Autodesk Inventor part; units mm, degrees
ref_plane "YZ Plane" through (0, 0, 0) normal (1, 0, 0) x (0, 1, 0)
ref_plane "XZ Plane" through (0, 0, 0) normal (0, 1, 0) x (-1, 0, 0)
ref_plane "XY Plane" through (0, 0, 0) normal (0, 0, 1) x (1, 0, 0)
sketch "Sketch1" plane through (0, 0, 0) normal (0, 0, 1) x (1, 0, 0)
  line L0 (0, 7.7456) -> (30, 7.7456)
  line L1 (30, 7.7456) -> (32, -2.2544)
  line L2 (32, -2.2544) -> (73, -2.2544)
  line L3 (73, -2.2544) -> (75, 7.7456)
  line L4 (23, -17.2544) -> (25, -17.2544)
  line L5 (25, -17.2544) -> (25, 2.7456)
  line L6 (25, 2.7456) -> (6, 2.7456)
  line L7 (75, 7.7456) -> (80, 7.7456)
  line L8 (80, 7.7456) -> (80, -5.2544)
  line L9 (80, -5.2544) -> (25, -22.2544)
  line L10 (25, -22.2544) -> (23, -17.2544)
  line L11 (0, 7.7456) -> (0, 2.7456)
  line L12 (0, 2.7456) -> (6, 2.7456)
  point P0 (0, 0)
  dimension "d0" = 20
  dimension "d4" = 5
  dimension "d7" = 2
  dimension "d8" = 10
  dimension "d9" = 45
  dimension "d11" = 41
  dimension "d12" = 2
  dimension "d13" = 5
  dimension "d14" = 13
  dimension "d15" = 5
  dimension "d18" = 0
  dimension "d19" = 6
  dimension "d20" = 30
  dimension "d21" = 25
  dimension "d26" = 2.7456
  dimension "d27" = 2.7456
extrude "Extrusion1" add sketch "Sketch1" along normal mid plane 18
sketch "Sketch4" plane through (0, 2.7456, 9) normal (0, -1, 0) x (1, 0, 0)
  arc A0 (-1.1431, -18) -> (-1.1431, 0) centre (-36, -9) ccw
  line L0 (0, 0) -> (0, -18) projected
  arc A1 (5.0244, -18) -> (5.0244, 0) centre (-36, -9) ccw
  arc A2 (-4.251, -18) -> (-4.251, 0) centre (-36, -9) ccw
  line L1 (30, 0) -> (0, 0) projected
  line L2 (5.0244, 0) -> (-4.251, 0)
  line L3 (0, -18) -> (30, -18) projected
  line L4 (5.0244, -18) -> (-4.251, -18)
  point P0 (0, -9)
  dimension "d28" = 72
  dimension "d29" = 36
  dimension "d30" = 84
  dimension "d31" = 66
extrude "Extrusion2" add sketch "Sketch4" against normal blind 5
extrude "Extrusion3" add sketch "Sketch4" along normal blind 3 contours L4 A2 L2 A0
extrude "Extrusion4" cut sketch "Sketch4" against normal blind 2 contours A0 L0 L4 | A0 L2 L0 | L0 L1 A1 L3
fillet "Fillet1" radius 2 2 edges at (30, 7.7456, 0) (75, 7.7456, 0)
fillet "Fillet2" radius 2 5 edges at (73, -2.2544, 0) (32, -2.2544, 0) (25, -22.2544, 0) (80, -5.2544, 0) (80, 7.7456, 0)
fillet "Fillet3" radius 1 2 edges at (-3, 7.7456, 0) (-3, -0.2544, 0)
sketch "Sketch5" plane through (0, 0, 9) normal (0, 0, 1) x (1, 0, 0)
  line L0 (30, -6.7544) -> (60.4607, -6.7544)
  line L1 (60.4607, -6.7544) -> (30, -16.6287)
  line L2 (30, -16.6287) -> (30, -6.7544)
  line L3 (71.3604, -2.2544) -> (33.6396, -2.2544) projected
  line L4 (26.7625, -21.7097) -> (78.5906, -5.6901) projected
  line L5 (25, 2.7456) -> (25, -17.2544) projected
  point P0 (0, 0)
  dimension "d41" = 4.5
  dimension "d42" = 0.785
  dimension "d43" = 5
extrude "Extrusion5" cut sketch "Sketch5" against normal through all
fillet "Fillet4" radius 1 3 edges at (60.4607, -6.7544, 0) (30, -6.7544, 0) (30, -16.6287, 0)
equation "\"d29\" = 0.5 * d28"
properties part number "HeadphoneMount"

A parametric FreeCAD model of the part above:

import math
import FreeCAD as App
import Part
import Sketcher
from FreeCAD import Vector
Q = App.Units.Quantity


def edges_at(feature, points):
    """Names of the edges that pass closest to the given points."""
    edges = feature.Shape.Edges
    near = lambda p: min(range(len(edges)), key=lambda i: edges[i].distToShape(Part.Vertex(*p))[0])
    return sorted({f"Edge{near(p) + 1}" for p in points})

doc = App.newDocument("Part")
params = doc.addObject("Spreadsheet::Sheet", "Params")
for row, (alias, value) in enumerate([
    ("sketch1_width", "30 mm"),
    ("sketch1_width2", "25 mm"),
    ("sketch1_width3", "2 mm"),
    ("sketch1_width4", "5 mm"),
    ("sketch1_width5", "41 mm"),
    ("pad1_length", "18 mm"),
    ("sketch2_radius", "42 mm"),
    ("sketch2_radius2", "33 mm"),
    ("pad2_length", "5 mm"),
    ("sketch3_radius", "36 mm"),
    ("sketch3_radius2", "33 mm"),
    ("pad3_length", "3 mm"),
    ("sketch4_radius", "42 mm"),
    ("sketch4_radius2", "36 mm"),
    ("pocket1_length", "2 mm"),
    ("fillet_radius", "2 mm"),
    ("fillet2_radius", "2 mm"),
    ("fillet3_radius", "1 mm"),
    ("fillet4_radius", "1 mm"),
], start=1):
    params.set(f"A{row}", alias)
    params.set(f"B{row}", "=" + value)
    params.setAlias(f"B{row}", alias)

body = doc.addObject("PartDesign::Body", "Body")

sketch1 = body.newObject("Sketcher::SketchObject", "Sketch")
sketch1.AttachmentSupport = (doc.getObject("XY_Plane"), [""])
sketch1.MapMode = "FlatFace"
sketch1.addGeometry([
    Part.LineSegment(Vector(30, 7.7456, 0), Vector(0, 7.7456, 0)),
    Part.LineSegment(Vector(0, 7.7456, 0), Vector(0, 2.7456, 0)),
    Part.LineSegment(Vector(0, 2.7456, 0), Vector(25, 2.7456, 0)),
    Part.LineSegment(Vector(25, 2.7456, 0), Vector(25, -17.2544, 0)),
    Part.LineSegment(Vector(25, -17.2544, 0), Vector(23, -17.2544, 0)),
    Part.LineSegment(Vector(23, -17.2544, 0), Vector(25, -22.2544, 0)),
    Part.LineSegment(Vector(25, -22.2544, 0), Vector(80, -5.2544, 0)),
    Part.LineSegment(Vector(80, -5.2544, 0), Vector(80, 7.7456, 0)),
    Part.LineSegment(Vector(80, 7.7456, 0), Vector(75, 7.7456, 0)),
    Part.LineSegment(Vector(75, 7.7456, 0), Vector(73, -2.2544, 0)),
    Part.LineSegment(Vector(73, -2.2544, 0), Vector(32, -2.2544, 0)),
    Part.LineSegment(Vector(32, -2.2544, 0), Vector(30, 7.7456, 0)),
], False)
sketch1.addConstraint([
    Sketcher.Constraint("Coincident", 0, 2, 1, 1),
    Sketcher.Constraint("Coincident", 1, 2, 2, 1),
    Sketcher.Constraint("Coincident", 2, 2, 3, 1),
    Sketcher.Constraint("Coincident", 3, 2, 4, 1),
    Sketcher.Constraint("Coincident", 4, 2, 5, 1),
    Sketcher.Constraint("Coincident", 5, 2, 6, 1),
    Sketcher.Constraint("Coincident", 6, 2, 7, 1),
    Sketcher.Constraint("Coincident", 7, 2, 8, 1),
    Sketcher.Constraint("Coincident", 8, 2, 9, 1),
    Sketcher.Constraint("Coincident", 9, 2, 10, 1),
    Sketcher.Constraint("Coincident", 10, 2, 11, 1),
    Sketcher.Constraint("Coincident", 11, 2, 0, 1),
    Sketcher.Constraint("Horizontal", 0),
    Sketcher.Constraint("Vertical", 1),
    Sketcher.Constraint("Horizontal", 2),
    Sketcher.Constraint("Vertical", 3),
    Sketcher.Constraint("Horizontal", 4),
    Sketcher.Constraint("Vertical", 7),
    Sketcher.Constraint("Horizontal", 8),
    Sketcher.Constraint("Horizontal", 10),
    Sketcher.Constraint("PointOnObject", 0, 2, -2),
    Sketcher.Constraint("Horizontal", 0, 2, 7, 2),
    Sketcher.Constraint("Vertical", 3, 2, 5, 2),
    Sketcher.Constraint("Equal", 8, 1),
    Sketcher.Constraint("Equal", 9, 11),
    Sketcher.Constraint("DistanceX", 0, 2, 0, 1, 30.0),
    Sketcher.Constraint("DistanceX", 2, 1, 2, 2, 25.0),
    Sketcher.Constraint("DistanceX", 4, 2, 4, 1, 2.0),
    Sketcher.Constraint("DistanceX", 8, 2, 8, 1, 5.0),
    Sketcher.Constraint("DistanceX", 10, 2, 10, 1, 41.0),
    Sketcher.Constraint("DistanceY", 3, 2, 3, 1, 20.0),
    Sketcher.Constraint("DistanceY", 7, 1, 7, 2, 13.0),
    Sketcher.Constraint("DistanceY", 5, 2, 3, 2, 5.0),
    Sketcher.Constraint("DistanceX", 9, 2, 8, 2, 2.0),
    Sketcher.Constraint("DistanceY", 9, 2, 8, 2, 10.0),
    Sketcher.Constraint("DistanceY", -1, 1, 1, 2, 2.7456),
])
sketch1.setExpression("Constraints[25]", "Params.sketch1_width")
sketch1.setExpression("Constraints[26]", "Params.sketch1_width2")
sketch1.setExpression("Constraints[27]", "Params.sketch1_width3")
sketch1.setExpression("Constraints[28]", "Params.sketch1_width4")
sketch1.setExpression("Constraints[29]", "Params.sketch1_width5")
pad1 = body.newObject("PartDesign::Pad", "Pad")
pad1.Profile = sketch1
pad1.setExpression("Length", "Params.pad1_length")
pad1.Midplane = True

sketch2 = body.newObject("Sketcher::SketchObject", "Sketch001")
sketch2.AttachmentSupport = (doc.getObject("XZ_Plane"), [""])
sketch2.MapMode = "FlatFace"
sketch2.AttachmentOffset = App.Placement(Vector(0, 0, -2.7456), App.Rotation())
sketch2.addGeometry([
    Part.LineSegment(Vector(-4.251, -9, 0), Vector(5.0244, -9, 0)),
    Part.ArcOfCircle(Part.Circle(Vector(-36, 0, 0), Vector(0, 0, 1), 42.000017), math.radians(-12.37362), math.radians(12.37362)),
    Part.LineSegment(Vector(5.0244, 9, 0), Vector(-4.251, 9, 0)),
    Part.ArcOfCircle(Part.Circle(Vector(-36, 0, 0), Vector(0, 0, 1), 32.999985), math.radians(-15.826628), math.radians(15.826628)),
], False)
sketch2.addConstraint([
    Sketcher.Constraint("Coincident", 0, 2, 1, 1),
    Sketcher.Constraint("Coincident", 1, 2, 2, 1),
    Sketcher.Constraint("Coincident", 2, 2, 3, 2),
    Sketcher.Constraint("Coincident", 3, 1, 0, 1),
    Sketcher.Constraint("Horizontal", 0),
    Sketcher.Constraint("Horizontal", 2),
    Sketcher.Constraint("Coincident", 3, 3, 1, 3),
    Sketcher.Constraint("Symmetric", 0, 2, 1, 2, -1),
    Sketcher.Constraint("Radius", 1, 42.0),
    Sketcher.Constraint("Radius", 3, 33.0),
    Sketcher.Constraint("DistanceX", 1, 3, -1, 1, 36.0),
    Sketcher.Constraint("DistanceY", 0, 2, -1, 1, 9.0),
])
sketch2.setExpression("Constraints[8]", "Params.sketch2_radius")
sketch2.setExpression("Constraints[9]", "Params.sketch2_radius2")
pad2 = body.newObject("PartDesign::Pad", "Pad001")
pad2.Profile = sketch2
pad2.setExpression("Length", "Params.pad2_length")
pad2.Reversed = True

sketch3 = body.newObject("Sketcher::SketchObject", "Sketch002")
sketch3.AttachmentSupport = (doc.getObject("XZ_Plane"), [""])
sketch3.MapMode = "FlatFace"
sketch3.AttachmentOffset = App.Placement(Vector(0, 0, -2.7456), App.Rotation())
sketch3.addGeometry([
    Part.LineSegment(Vector(-4.251, -9, 0), Vector(-1.1431, -9, 0)),
    Part.ArcOfCircle(Part.Circle(Vector(-36, 0, 0), Vector(0, 0, 1), 36.000048), math.radians(-14.477492), math.radians(14.477492)),
    Part.LineSegment(Vector(-1.1431, 9, 0), Vector(-4.251, 9, 0)),
    Part.ArcOfCircle(Part.Circle(Vector(-36, 0, 0), Vector(0, 0, 1), 32.999985), math.radians(-15.826628), math.radians(15.826628)),
], False)
sketch3.addConstraint([
    Sketcher.Constraint("Coincident", 0, 2, 1, 1),
    Sketcher.Constraint("Coincident", 1, 2, 2, 1),
    Sketcher.Constraint("Coincident", 2, 2, 3, 2),
    Sketcher.Constraint("Coincident", 3, 1, 0, 1),
    Sketcher.Constraint("Horizontal", 0),
    Sketcher.Constraint("Horizontal", 2),
    Sketcher.Constraint("Coincident", 3, 3, 1, 3),
    Sketcher.Constraint("Symmetric", 0, 2, 1, 2, -1),
    Sketcher.Constraint("Radius", 1, 36.0),
    Sketcher.Constraint("Radius", 3, 33.0),
    Sketcher.Constraint("DistanceX", 1, 3, -1, 1, 36.0),
    Sketcher.Constraint("DistanceY", 0, 2, -1, 1, 9.0),
])
sketch3.setExpression("Constraints[8]", "Params.sketch3_radius")
sketch3.setExpression("Constraints[9]", "Params.sketch3_radius2")
pad3 = body.newObject("PartDesign::Pad", "Pad002")
pad3.Profile = sketch3
pad3.setExpression("Length", "Params.pad3_length")

sketch4 = body.newObject("Sketcher::SketchObject", "Sketch003")
sketch4.AttachmentSupport = (doc.getObject("XZ_Plane"), [""])
sketch4.MapMode = "FlatFace"
sketch4.AttachmentOffset = App.Placement(Vector(0, 0, -2.7456), App.Rotation())
sketch4.addGeometry([
    Part.LineSegment(Vector(-1.1431, -9, 0), Vector(5.0244, -9, 0)),
    Part.ArcOfCircle(Part.Circle(Vector(-36, 0, 0), Vector(0, 0, 1), 42.000017), math.radians(-12.37362), math.radians(12.37362)),
    Part.LineSegment(Vector(5.0244, 9, 0), Vector(-1.1431, 9, 0)),
    Part.ArcOfCircle(Part.Circle(Vector(-36, 0, 0), Vector(0, 0, 1), 36.000048), math.radians(-14.477492), math.radians(14.477492)),
], False)
sketch4.addConstraint([
    Sketcher.Constraint("Coincident", 0, 2, 1, 1),
    Sketcher.Constraint("Coincident", 1, 2, 2, 1),
    Sketcher.Constraint("Coincident", 2, 2, 3, 2),
    Sketcher.Constraint("Coincident", 3, 1, 0, 1),
    Sketcher.Constraint("Horizontal", 0),
    Sketcher.Constraint("Horizontal", 2),
    Sketcher.Constraint("Coincident", 3, 3, 1, 3),
    Sketcher.Constraint("Symmetric", 0, 2, 1, 2, -1),
    Sketcher.Constraint("Radius", 1, 42.0),
    Sketcher.Constraint("Radius", 3, 36.0),
    Sketcher.Constraint("DistanceX", 1, 3, -1, 1, 36.0),
    Sketcher.Constraint("DistanceY", 0, 2, -1, 1, 9.0),
])
sketch4.setExpression("Constraints[8]", "Params.sketch4_radius")
sketch4.setExpression("Constraints[9]", "Params.sketch4_radius2")
pocket1 = body.newObject("PartDesign::Pocket", "Pocket")
pocket1.Profile = sketch4
pocket1.setExpression("Length", "Params.pocket1_length")
doc.recompute()

fillet = body.newObject("PartDesign::Fillet", "Fillet")
fillet.Base = (pocket1, edges_at(pocket1, [(30, 7.746, 0), (75, 7.746, 0)]))
fillet.setExpression("Radius", "Params.fillet_radius")
doc.recompute()

fillet2 = body.newObject("PartDesign::Fillet", "Fillet001")
fillet2.Base = (fillet, edges_at(fillet, [
    (73, -2.254, 0),
    (32, -2.254, 0),
    (25, -22.254, 0),
    (80, -5.254, 0),
    (80, 7.746, 0),
]))
fillet2.setExpression("Radius", "Params.fillet2_radius")
doc.recompute()

fillet3 = body.newObject("PartDesign::Fillet", "Fillet002")
fillet3.Base = (fillet2, edges_at(fillet2, [(-3, 7.746, 0), (-3, -0.254, 0)]))
fillet3.setExpression("Radius", "Params.fillet3_radius")

sketch5 = body.newObject("Sketcher::SketchObject", "Sketch004")
sketch5.AttachmentSupport = (doc.getObject("XY_Plane"), [""])
sketch5.MapMode = "FlatFace"
sketch5.AttachmentOffset = App.Placement(Vector(0, 0, 9), App.Rotation())
sketch5.addGeometry([
    Part.LineSegment(Vector(60.4607, -6.7544, 0), Vector(30, -6.7544, 0)),
    Part.LineSegment(Vector(30, -6.7544, 0), Vector(30, -16.6287, 0)),
    Part.LineSegment(Vector(30, -16.6287, 0), Vector(60.4607, -6.7544, 0)),
], False)
sketch5.addConstraint([
    Sketcher.Constraint("Coincident", 0, 2, 1, 1),
    Sketcher.Constraint("Coincident", 1, 2, 2, 1),
    Sketcher.Constraint("Coincident", 2, 2, 0, 1),
    Sketcher.Constraint("Horizontal", 0),
    Sketcher.Constraint("Vertical", 1),
    Sketcher.Constraint("DistanceX", -1, 1, 0, 2, 30.0),
    Sketcher.Constraint("Angle", 2, Q("17.961 deg")),
    Sketcher.Constraint("DistanceX", 0, 2, 0, 1, 30.4607),
    Sketcher.Constraint("DistanceY", 0, 2, -1, 1, 6.7544),
])
pocket2 = body.newObject("PartDesign::Pocket", "Pocket001")
pocket2.Profile = sketch5
pocket2.Type = "ThroughAll"
doc.recompute()

fillet4 = body.newObject("PartDesign::Fillet", "Fillet003")
fillet4.Base = (pocket2, edges_at(pocket2, [(60.461, -6.754, 0), (30, -6.754, 0), (30, -16.629, 0)]))
fillet4.setExpression("Radius", "Params.fillet4_radius")

doc.recompute()
